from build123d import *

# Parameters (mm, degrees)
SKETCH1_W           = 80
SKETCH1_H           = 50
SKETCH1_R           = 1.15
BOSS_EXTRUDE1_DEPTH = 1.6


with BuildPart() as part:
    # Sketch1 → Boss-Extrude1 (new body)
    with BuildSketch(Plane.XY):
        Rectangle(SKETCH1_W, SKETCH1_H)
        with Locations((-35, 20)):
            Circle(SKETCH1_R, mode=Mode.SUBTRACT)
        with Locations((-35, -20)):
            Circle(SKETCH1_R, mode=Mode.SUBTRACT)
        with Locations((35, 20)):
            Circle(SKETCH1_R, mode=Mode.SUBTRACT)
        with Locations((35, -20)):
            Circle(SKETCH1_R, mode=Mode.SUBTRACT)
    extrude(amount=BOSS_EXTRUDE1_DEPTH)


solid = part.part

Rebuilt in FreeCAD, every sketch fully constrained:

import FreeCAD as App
import Part
import Sketcher


def add_polygon(sketch, points):
    """Adds a closed chain of lines whose ends are joined by coincident constraints."""
    first, n = sketch.GeometryCount, len(points)
    for a, b in zip(points, points[1:] + points[:1]):
        sketch.addGeometry(Part.LineSegment(App.Vector(*a, 0), App.Vector(*b, 0)), False)
    for i in range(n):
        sketch.addConstraint(Sketcher.Constraint("Coincident", first + i, 2, first + (i + 1) % n, 1))

doc = App.newDocument("Part")
body = doc.addObject("PartDesign::Body", "Body")

sketch1 = body.newObject("Sketcher::SketchObject", "Sketch")
sketch1.AttachmentSupport = (doc.getObject("XY_Plane"), [""])
sketch1.MapMode = "FlatFace"
add_polygon(sketch1, [(-40, 25), (-40, -25), (40, -25), (40, 25)])
sketch1.addGeometry(Part.Circle(App.Vector(-35, -20, 0), App.Vector(0, 0, 1), 1.1), False)
sketch1.addGeometry(Part.Circle(App.Vector(35, -20, 0), App.Vector(0, 0, 1), 1.1), False)
sketch1.addGeometry(Part.Circle(App.Vector(-35, 20, 0), App.Vector(0, 0, 1), 1.1), False)
sketch1.addGeometry(Part.Circle(App.Vector(35, 20, 0), App.Vector(0, 0, 1), 1.1), False)
sketch1.addConstraint([
    Sketcher.Constraint("Vertical", 0),
    Sketcher.Constraint("Horizontal", 1),
    Sketcher.Constraint("Vertical", 2),
    Sketcher.Constraint("Horizontal", 3),
    Sketcher.Constraint("Equal", 4, 5),
    Sketcher.Constraint("Equal", 5, 6),
    Sketcher.Constraint("Equal", 6, 7),
    Sketcher.Constraint("Symmetric", 5, 3, 6, 3, -1, 1),
    Sketcher.Constraint("Symmetric", 4, 3, 7, 3, -1, 1),
    Sketcher.Constraint("Symmetric", 0, 2, 2, 2, -1, 1),
    Sketcher.Constraint("Symmetric", 4, 3, 5, 3, -2),
    Sketcher.Constraint("Diameter", 4, 2.3),
    Sketcher.Constraint("DistanceX", 1, 1, 1, 2, 80.0),
    Sketcher.Constraint("DistanceY", 0, 2, 0, 1, 50.0),
    Sketcher.Constraint("DistanceX", 4, 3, -1, 1, 35.0),
    Sketcher.Constraint("DistanceY", 4, 3, -1, 1, 20.0),
])
pad1 = body.newObject("PartDesign::Pad", "Pad")
pad1.Profile = sketch1
pad1.Length = 1.6

doc.recompute()
